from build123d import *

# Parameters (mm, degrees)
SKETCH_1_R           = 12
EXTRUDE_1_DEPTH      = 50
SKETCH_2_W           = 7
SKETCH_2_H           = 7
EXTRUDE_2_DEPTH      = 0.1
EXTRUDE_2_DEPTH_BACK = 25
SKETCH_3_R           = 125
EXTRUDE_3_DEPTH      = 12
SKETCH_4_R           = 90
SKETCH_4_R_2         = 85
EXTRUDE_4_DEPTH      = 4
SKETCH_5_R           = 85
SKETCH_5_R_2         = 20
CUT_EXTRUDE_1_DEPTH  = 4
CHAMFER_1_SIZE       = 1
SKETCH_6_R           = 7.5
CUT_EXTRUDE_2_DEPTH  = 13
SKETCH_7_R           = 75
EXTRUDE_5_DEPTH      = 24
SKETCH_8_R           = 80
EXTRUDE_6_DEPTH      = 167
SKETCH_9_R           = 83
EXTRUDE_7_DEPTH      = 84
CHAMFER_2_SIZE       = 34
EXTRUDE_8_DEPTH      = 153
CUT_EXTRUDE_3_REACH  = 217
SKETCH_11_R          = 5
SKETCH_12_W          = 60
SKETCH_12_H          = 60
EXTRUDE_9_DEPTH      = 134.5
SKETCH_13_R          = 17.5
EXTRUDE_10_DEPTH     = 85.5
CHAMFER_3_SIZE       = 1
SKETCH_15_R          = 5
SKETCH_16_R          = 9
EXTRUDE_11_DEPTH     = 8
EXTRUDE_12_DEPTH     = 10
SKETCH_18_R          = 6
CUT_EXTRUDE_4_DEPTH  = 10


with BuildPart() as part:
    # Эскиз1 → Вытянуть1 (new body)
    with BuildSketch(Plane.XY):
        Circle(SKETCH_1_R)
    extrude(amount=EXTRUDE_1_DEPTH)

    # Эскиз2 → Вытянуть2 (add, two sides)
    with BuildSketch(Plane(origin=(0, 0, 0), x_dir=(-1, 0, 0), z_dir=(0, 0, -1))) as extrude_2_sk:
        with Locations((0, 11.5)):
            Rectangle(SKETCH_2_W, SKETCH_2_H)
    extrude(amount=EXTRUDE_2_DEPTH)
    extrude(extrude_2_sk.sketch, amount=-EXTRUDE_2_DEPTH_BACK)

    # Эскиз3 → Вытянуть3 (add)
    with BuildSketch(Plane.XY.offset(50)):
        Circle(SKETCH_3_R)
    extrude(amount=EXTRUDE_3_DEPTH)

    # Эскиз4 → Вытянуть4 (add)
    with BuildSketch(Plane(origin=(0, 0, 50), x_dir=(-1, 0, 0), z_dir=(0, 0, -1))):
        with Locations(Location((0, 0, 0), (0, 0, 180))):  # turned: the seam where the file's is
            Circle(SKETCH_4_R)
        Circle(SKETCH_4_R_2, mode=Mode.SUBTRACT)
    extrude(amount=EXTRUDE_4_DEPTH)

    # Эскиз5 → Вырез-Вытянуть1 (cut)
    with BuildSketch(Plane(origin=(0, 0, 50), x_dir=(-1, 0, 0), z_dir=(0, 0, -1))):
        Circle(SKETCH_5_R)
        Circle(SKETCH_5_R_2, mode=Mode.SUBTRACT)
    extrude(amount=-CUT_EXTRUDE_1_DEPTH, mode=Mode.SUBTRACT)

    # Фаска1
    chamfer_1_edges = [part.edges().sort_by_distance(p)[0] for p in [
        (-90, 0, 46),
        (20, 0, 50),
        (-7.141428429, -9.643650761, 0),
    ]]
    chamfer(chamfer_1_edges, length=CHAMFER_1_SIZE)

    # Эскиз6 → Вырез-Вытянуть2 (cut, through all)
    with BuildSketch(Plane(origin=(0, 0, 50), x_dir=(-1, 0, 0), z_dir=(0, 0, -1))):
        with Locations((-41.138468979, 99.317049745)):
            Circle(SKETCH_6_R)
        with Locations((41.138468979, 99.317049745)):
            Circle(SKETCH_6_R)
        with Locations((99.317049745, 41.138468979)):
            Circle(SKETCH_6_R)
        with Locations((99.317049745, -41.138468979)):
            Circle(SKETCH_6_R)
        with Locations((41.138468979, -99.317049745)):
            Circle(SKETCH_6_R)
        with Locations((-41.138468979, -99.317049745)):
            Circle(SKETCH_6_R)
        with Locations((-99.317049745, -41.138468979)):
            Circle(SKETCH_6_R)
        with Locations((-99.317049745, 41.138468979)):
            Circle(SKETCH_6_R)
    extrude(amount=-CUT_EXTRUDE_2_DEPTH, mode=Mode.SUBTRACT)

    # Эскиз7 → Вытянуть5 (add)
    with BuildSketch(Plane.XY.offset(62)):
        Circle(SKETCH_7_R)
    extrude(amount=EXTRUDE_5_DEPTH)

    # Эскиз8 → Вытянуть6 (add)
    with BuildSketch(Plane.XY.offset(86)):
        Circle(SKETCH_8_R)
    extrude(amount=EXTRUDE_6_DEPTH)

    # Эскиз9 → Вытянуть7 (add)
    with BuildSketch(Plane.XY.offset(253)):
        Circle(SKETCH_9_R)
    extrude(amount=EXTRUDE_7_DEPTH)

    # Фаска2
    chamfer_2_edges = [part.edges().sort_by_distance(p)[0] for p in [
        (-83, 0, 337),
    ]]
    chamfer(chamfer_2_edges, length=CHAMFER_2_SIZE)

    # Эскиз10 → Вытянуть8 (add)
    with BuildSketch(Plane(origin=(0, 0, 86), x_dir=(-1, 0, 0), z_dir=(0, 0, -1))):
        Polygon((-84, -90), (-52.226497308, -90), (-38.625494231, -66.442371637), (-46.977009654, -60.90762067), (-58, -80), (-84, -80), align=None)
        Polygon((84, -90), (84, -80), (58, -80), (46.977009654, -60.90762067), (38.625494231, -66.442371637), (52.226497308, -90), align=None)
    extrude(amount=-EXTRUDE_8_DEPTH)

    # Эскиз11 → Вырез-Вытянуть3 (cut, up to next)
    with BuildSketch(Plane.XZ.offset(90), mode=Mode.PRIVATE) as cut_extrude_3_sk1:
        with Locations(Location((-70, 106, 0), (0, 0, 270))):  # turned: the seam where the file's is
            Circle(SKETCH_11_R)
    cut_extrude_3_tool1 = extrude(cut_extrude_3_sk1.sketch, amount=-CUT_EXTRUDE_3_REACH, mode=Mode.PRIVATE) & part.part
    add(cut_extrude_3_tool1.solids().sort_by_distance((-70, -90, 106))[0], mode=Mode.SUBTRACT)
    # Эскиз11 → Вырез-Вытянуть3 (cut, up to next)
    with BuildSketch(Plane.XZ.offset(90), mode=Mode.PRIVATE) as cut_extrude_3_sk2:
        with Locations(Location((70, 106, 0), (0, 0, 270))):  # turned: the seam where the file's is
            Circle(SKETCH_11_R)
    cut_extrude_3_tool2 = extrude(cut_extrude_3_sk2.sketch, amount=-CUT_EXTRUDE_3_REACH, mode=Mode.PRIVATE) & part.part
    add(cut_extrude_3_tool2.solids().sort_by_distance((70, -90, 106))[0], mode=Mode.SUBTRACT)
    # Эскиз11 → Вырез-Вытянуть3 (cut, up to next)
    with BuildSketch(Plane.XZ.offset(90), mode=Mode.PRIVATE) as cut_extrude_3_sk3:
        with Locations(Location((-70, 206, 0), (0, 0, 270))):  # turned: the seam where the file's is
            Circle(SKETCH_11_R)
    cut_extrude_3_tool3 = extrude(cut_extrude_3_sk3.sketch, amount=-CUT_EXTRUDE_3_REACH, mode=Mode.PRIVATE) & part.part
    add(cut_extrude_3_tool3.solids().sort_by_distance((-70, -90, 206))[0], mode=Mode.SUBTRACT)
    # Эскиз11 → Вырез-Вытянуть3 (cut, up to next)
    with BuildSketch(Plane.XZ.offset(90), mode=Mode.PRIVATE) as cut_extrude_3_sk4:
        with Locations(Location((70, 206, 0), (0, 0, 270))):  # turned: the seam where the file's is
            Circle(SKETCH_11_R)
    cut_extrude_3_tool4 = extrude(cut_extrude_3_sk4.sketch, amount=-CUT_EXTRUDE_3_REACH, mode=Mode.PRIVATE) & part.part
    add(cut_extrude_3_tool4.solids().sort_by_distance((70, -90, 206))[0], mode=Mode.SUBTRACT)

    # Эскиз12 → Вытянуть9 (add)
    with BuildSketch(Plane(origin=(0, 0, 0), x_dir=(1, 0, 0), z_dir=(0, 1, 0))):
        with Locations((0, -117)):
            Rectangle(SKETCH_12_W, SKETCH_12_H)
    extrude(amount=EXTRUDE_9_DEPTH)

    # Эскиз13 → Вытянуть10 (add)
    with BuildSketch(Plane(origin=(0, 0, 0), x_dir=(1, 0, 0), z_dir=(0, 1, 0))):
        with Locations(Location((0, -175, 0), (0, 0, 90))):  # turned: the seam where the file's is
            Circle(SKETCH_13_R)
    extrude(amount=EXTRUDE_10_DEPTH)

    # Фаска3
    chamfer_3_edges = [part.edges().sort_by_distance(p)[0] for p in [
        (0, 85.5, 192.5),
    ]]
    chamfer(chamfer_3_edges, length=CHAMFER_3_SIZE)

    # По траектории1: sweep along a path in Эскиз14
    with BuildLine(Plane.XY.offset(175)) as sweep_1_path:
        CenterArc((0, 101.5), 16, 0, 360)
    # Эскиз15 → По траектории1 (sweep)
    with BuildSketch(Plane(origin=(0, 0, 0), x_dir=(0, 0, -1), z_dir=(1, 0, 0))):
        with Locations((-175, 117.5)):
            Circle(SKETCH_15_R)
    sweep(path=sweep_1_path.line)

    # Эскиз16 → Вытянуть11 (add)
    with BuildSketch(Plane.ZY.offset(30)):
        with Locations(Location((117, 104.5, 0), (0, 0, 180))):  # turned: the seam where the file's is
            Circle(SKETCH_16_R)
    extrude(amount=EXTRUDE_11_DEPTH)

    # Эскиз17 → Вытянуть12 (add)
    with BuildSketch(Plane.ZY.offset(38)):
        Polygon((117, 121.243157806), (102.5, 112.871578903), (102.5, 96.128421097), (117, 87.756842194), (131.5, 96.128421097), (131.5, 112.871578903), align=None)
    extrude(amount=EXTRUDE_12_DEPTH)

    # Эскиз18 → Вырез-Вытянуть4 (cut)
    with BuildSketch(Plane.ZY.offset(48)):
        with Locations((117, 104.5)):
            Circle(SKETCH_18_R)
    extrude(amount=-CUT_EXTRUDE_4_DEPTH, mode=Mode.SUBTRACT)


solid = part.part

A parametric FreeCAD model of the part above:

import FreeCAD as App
import Part
import Sketcher

V = App.Vector
Q = App.Units.Quantity


def edges_at(feature, points):
    """Names of the edges that pass closest to the given points."""
    edges = feature.Shape.Edges
    near = lambda p: min(range(len(edges)), key=lambda i: edges[i].distToShape(Part.Vertex(*p))[0])
    return sorted({f"Edge{near(p) + 1}" for p in points})

doc = App.newDocument("Part")
body = doc.addObject("PartDesign::Body", "Body")

# Sketch on XY plane
sketch1 = body.newObject("Sketcher::SketchObject", "Sketch")
sketch1.AttachmentSupport = (doc.getObject("XY_Plane"), [""])
sketch1.MapMode = "FlatFace"
sketch1.addGeometry(Part.Circle(V(0, 0, 0), V(0, 0, 1), 12), False)
sketch1.addConstraint(Sketcher.Constraint("Coincident", 0, 3, -1, 1))
sketch1.addConstraint(Sketcher.Constraint("Diameter", 0, 24.0))
pad1 = body.newObject("PartDesign::Pad", "Pad")
pad1.Profile = sketch1
pad1.Length = 50

# Sketch on XY plane
sketch2 = body.newObject("Sketcher::SketchObject", "Sketch001")
sketch2.AttachmentSupport = (doc.getObject("XY_Plane"), [""])
sketch2.MapMode = "FlatFace"
sketch2.addGeometry(Part.LineSegment(V(4, 15, 0), V(4, 8, 0)), False)
sketch2.addGeometry(Part.LineSegment(V(4, 8, 0), V(-4, 8, 0)), False)
sketch2.addGeometry(Part.LineSegment(V(-4, 8, 0), V(-4, 15, 0)), False)
sketch2.addGeometry(Part.LineSegment(V(-4, 15, 0), V(4, 15, 0)), False)
sketch2.addConstraint(Sketcher.Constraint("Coincident", 0, 2, 1, 1))
sketch2.addConstraint(Sketcher.Constraint("Coincident", 1, 2, 2, 1))
sketch2.addConstraint(Sketcher.Constraint("Coincident", 2, 2, 3, 1))
sketch2.addConstraint(Sketcher.Constraint("Coincident", 3, 2, 0, 1))
sketch2.addConstraint(Sketcher.Constraint("Vertical", 0))
sketch2.addConstraint(Sketcher.Constraint("Horizontal", 1))
sketch2.addConstraint(Sketcher.Constraint("Vertical", 2))
sketch2.addConstraint(Sketcher.Constraint("Horizontal", 3))
sketch2.addConstraint(Sketcher.Constraint("Equal", 3, 0))
sketch2.addConstraint(Sketcher.Constraint("DistanceX", 1, 2, 1, 1, 7.0))
sketch2.addConstraint(Sketcher.Constraint("DistanceY", -1, 1, 0, 2, 8.0))
sketch2.addConstraint(Sketcher.Constraint("DistanceX", -1, 1, 0, 2, 3.5))
pad2 = body.newObject("PartDesign::Pad", "Pad001")
pad2.Profile = sketch2
pad2.Type = "TwoLengths"
pad2.Length = 0.1
pad2.Length2 = 25
pad2.Reversed = True

# Sketch on XY plane
sketch3 = body.newObject("Sketcher::SketchObject", "Sketch002")
sketch3.AttachmentSupport = (doc.getObject("XY_Plane"), [""])
sketch3.MapMode = "FlatFace"
sketch3.AttachmentOffset = App.Placement(V(0, 0, 50), App.Rotation())
sketch3.addGeometry(Part.Circle(V(0, 0, 0), V(0, 0, 1), 125), False)
sketch3.addConstraint(Sketcher.Constraint("Coincident", 0, 3, -1, 1))
sketch3.addConstraint(Sketcher.Constraint("Diameter", 0, 250.0))
pad3 = body.newObject("PartDesign::Pad", "Pad002")
pad3.Profile = sketch3
pad3.Length = 12

# Sketch on XY plane
sketch4 = body.newObject("Sketcher::SketchObject", "Sketch003")
sketch4.AttachmentSupport = (doc.getObject("XY_Plane"), [""])
sketch4.MapMode = "FlatFace"
sketch4.AttachmentOffset = App.Placement(V(0, 0, 50), App.Rotation())
sketch4.addGeometry(Part.Circle(V(0, 0, 0), V(0, 0, 1), 90), False)
sketch4.addGeometry(Part.Circle(V(0, 0, 0), V(0, 0, 1), 85), False)
sketch4.addConstraint(Sketcher.Constraint("Coincident", 0, 3, -1, 1))
sketch4.addConstraint(Sketcher.Constraint("Coincident", 1, 3, -1, 1))
sketch4.addConstraint(Sketcher.Constraint("Diameter", 0, 180.0))
sketch4.addConstraint(Sketcher.Constraint("Diameter", 1, 170.0))
pad4 = body.newObject("PartDesign::Pad", "Pad003")
pad4.Profile = sketch4
pad4.Length = 4
pad4.Reversed = True

# Sketch on XY plane
sketch5 = body.newObject("Sketcher::SketchObject", "Sketch004")
sketch5.AttachmentSupport = (doc.getObject("XY_Plane"), [""])
sketch5.MapMode = "FlatFace"
sketch5.AttachmentOffset = App.Placement(V(0, 0, 50), App.Rotation())
sketch5.addGeometry(Part.Circle(V(0, 0, 0), V(0, 0, 1), 85), False)
sketch5.addGeometry(Part.Circle(V(0, 0, 0), V(0, 0, 1), 20), False)
sketch5.addConstraint(Sketcher.Constraint("Coincident", 0, 3, -1, 1))
sketch5.addConstraint(Sketcher.Constraint("Coincident", 1, 3, -1, 1))
sketch5.addConstraint(Sketcher.Constraint("Diameter", 0, 170.0))
sketch5.addConstraint(Sketcher.Constraint("Diameter", 1, 40.0))
pocket1 = body.newObject("PartDesign::Pocket", "Pocket")
pocket1.Profile = sketch5
pocket1.Length = 4
pocket1.Reversed = True
doc.recompute()

chamfer = body.newObject("PartDesign::Chamfer", "Chamfer")
chamfer.Base = (pocket1, edges_at(pocket1, [(-90, 0, 46), (20, 0, 50), (-7.141, -9.644, 0)]))
chamfer.Size = 1

# Sketch on XY plane
sketch6 = body.newObject("Sketcher::SketchObject", "Sketch005")
sketch6.AttachmentSupport = (doc.getObject("XY_Plane"), [""])
sketch6.MapMode = "FlatFace"
sketch6.AttachmentOffset = App.Placement(V(0, 0, 50), App.Rotation())
sketch6.addGeometry(Part.Circle(V(41, 99, 0), V(0, 0, 1), 8), False)
sketch6.addGeometry(Part.Circle(V(-41, 99, 0), V(0, 0, 1), 8), False)
sketch6.addGeometry(Part.Circle(V(-99, 41, 0), V(0, 0, 1), 8), False)
sketch6.addGeometry(Part.Circle(V(-99, -41, 0), V(0, 0, 1), 8), False)
sketch6.addGeometry(Part.Circle(V(-41, -99, 0), V(0, 0, 1), 8), False)
sketch6.addGeometry(Part.Circle(V(41, -99, 0), V(0, 0, 1), 8), False)
sketch6.addGeometry(Part.Circle(V(99, -41, 0), V(0, 0, 1), 8), False)
sketch6.addGeometry(Part.Circle(V(99, 41, 0), V(0, 0, 1), 8), False)
sketch6.addConstraint(Sketcher.Constraint("Equal", 0, 1))
sketch6.addConstraint(Sketcher.Constraint("Equal", 1, 2))
sketch6.addConstraint(Sketcher.Constraint("Equal", 2, 3))
sketch6.addConstraint(Sketcher.Constraint("Equal", 3, 4))
sketch6.addConstraint(Sketcher.Constraint("Equal", 4, 5))
sketch6.addConstraint(Sketcher.Constraint("Equal", 5, 6))
sketch6.addConstraint(Sketcher.Constraint("Equal", 6, 7))
sketch6.addConstraint(Sketcher.Constraint("Symmetric", 0, 3, 4, 3, -1, 1))
sketch6.addConstraint(Sketcher.Constraint("Symmetric", 1, 3, 5, 3, -1, 1))
sketch6.addConstraint(Sketcher.Constraint("Symmetric", 2, 3, 6, 3, -1, 1))
sketch6.addConstraint(Sketcher.Constraint("Symmetric", 3, 3, 7, 3, -1, 1))
sketch6.addConstraint(Sketcher.Constraint("Symmetric", 0, 3, 1, 3, -2))
sketch6.addConstraint(Sketcher.Constraint("Symmetric", 3, 3, 6, 3, -2))
sketch6.addConstraint(Sketcher.Constraint("Diameter", 0, 15.0))
sketch6.addConstraint(Sketcher.Constraint("DistanceY", 4, 3, 1, 3, 198.634099))
sketch6.addConstraint(Sketcher.Constraint("DistanceX", 3, 3, 6, 3, 198.634099))
sketch6.addConstraint(Sketcher.Constraint("DistanceX", -1, 1, 0, 3, 41.138469))
sketch6.addConstraint(Sketcher.Constraint("DistanceY", -1, 1, 2, 3, 41.138469))
pocket2 = body.newObject("PartDesign::Pocket", "Pocket001")
pocket2.Profile = sketch6
pocket2.Type = "ThroughAll"
pocket2.Reversed = True

# Sketch on XY plane
sketch7 = body.newObject("Sketcher::SketchObject", "Sketch006")
sketch7.AttachmentSupport = (doc.getObject("XY_Plane"), [""])
sketch7.MapMode = "FlatFace"
sketch7.AttachmentOffset = App.Placement(V(0, 0, 62), App.Rotation())
sketch7.addGeometry(Part.Circle(V(0, 0, 0), V(0, 0, 1), 75), False)
sketch7.addConstraint(Sketcher.Constraint("Coincident", 0, 3, -1, 1))
sketch7.addConstraint(Sketcher.Constraint("Diameter", 0, 150.0))
pad5 = body.newObject("PartDesign::Pad", "Pad004")
pad5.Profile = sketch7
pad5.Length = 24

# Sketch on XY plane
sketch8 = body.newObject("Sketcher::SketchObject", "Sketch007")
sketch8.AttachmentSupport = (doc.getObject("XY_Plane"), [""])
sketch8.MapMode = "FlatFace"
sketch8.AttachmentOffset = App.Placement(V(0, 0, 86), App.Rotation())
sketch8.addGeometry(Part.Circle(V(0, 0, 0), V(0, 0, 1), 80), False)
sketch8.addConstraint(Sketcher.Constraint("Coincident", 0, 3, -1, 1))
sketch8.addConstraint(Sketcher.Constraint("Diameter", 0, 160.0))
pad6 = body.newObject("PartDesign::Pad", "Pad005")
pad6.Profile = sketch8
pad6.Length = 167

# Sketch on XY plane
sketch9 = body.newObject("Sketcher::SketchObject", "Sketch008")
sketch9.AttachmentSupport = (doc.getObject("XY_Plane"), [""])
sketch9.MapMode = "FlatFace"
sketch9.AttachmentOffset = App.Placement(V(0, 0, 253), App.Rotation())
sketch9.addGeometry(Part.Circle(V(0, 0, 0), V(0, 0, 1), 83), False)
sketch9.addConstraint(Sketcher.Constraint("Coincident", 0, 3, -1, 1))
sketch9.addConstraint(Sketcher.Constraint("Diameter", 0, 166.0))
pad7 = body.newObject("PartDesign::Pad", "Pad006")
pad7.Profile = sketch9
pad7.Length = 84
doc.recompute()

chamfer2 = body.newObject("PartDesign::Chamfer", "Chamfer001")
chamfer2.Base = (pad7, edges_at(pad7, [(-83, 0, 337)]))
chamfer2.Size = 34

# Sketch on XY plane
sketch10 = body.newObject("Sketcher::SketchObject", "Sketch009")
sketch10.AttachmentSupport = (doc.getObject("XY_Plane"), [""])
sketch10.MapMode = "FlatFace"
sketch10.AttachmentOffset = App.Placement(V(0, 0, 86), App.Rotation())
sketch10.addGeometry(Part.LineSegment(V(84, -90, 0), V(52, -90, 0)), False)
sketch10.addGeometry(Part.LineSegment(V(52, -90, 0), V(39, -66, 0)), False)
sketch10.addGeometry(Part.LineSegment(V(39, -66, 0), V(47, -61, 0)), False)
sketch10.addGeometry(Part.LineSegment(V(47, -61, 0), V(58, -80, 0)), False)
sketch10.addGeometry(Part.LineSegment(V(58, -80, 0), V(84, -80, 0)), False)
sketch10.addGeometry(Part.LineSegment(V(84, -80, 0), V(84, -90, 0)), False)
sketch10.addGeometry(Part.LineSegment(V(-84, -90, 0), V(-84, -80, 0)), False)
sketch10.addGeometry(Part.LineSegment(V(-84, -80, 0), V(-58, -80, 0)), False)
sketch10.addGeometry(Part.LineSegment(V(-58, -80, 0), V(-47, -61, 0)), False)
sketch10.addGeometry(Part.LineSegment(V(-47, -61, 0), V(-39, -66, 0)), False)
sketch10.addGeometry(Part.LineSegment(V(-39, -66, 0), V(-52, -90, 0)), False)
sketch10.addGeometry(Part.LineSegment(V(-52, -90, 0), V(-84, -90, 0)), False)
sketch10.addConstraint(Sketcher.Constraint("Coincident", 0, 2, 1, 1))
sketch10.addConstraint(Sketcher.Constraint("Coincident", 1, 2, 2, 1))
sketch10.addConstraint(Sketcher.Constraint("Coincident", 2, 2, 3, 1))
sketch10.addConstraint(Sketcher.Constraint("Coincident", 3, 2, 4, 1))
sketch10.addConstraint(Sketcher.Constraint("Coincident", 4, 2, 5, 1))
sketch10.addConstraint(Sketcher.Constraint("Coincident", 5, 2, 0, 1))
sketch10.addConstraint(Sketcher.Constraint("Coincident", 6, 2, 7, 1))
sketch10.addConstraint(Sketcher.Constraint("Coincident", 7, 2, 8, 1))
sketch10.addConstraint(Sketcher.Constraint("Coincident", 8, 2, 9, 1))
sketch10.addConstraint(Sketcher.Constraint("Coincident", 9, 2, 10, 1))
sketch10.addConstraint(Sketcher.Constraint("Coincident", 10, 2, 11, 1))
sketch10.addConstraint(Sketcher.Constraint("Coincident", 11, 2, 6, 1))
sketch10.addConstraint(Sketcher.Constraint("Horizontal", 0))
sketch10.addConstraint(Sketcher.Constraint("Horizontal", 4))
sketch10.addConstraint(Sketcher.Constraint("Vertical", 5))
sketch10.addConstraint(Sketcher.Constraint("Vertical", 6))
sketch10.addConstraint(Sketcher.Constraint("Horizontal", 7))
sketch10.addConstraint(Sketcher.Constraint("Horizontal", 11))
sketch10.addConstraint(Sketcher.Constraint("Symmetric", 4, 2, 6, 2, -2))
sketch10.addConstraint(Sketcher.Constraint("Symmetric", 2, 2, 8, 2, -2))
sketch10.addConstraint(Sketcher.Constraint("Symmetric", 1, 2, 9, 2, -2))
sketch10.addConstraint(Sketcher.Constraint("Symmetric", 0, 2, 10, 2, -2))
sketch10.addConstraint(Sketcher.Constraint("Parallel", 1, 3))
sketch10.addConstraint(Sketcher.Constraint("Parallel", 8, 10))
sketch10.addConstraint(Sketcher.Constraint("DistanceX", 4, 1, 4, 2, 26.0))
sketch10.addConstraint(Sketcher.Constraint("DistanceY", 5, 2, 5, 1, 10.0))
sketch10.addConstraint(Sketcher.Constraint("Angle", 1, Q("120 deg")))
sketch10.addConstraint(Sketcher.Constraint("DistanceY", 0, 2, -1, 1, 90.0))
sketch10.addConstraint(Sketcher.Constraint("DistanceX", -1, 1, 3, 2, 58.0))
sketch10.addConstraint(Sketcher.Constraint("Distance", 3, 22.045981))
sketch10.addConstraint(Sketcher.Constraint("DistanceX", 0, 2, 0, 1, 31.773503))
sketch10.addConstraint(Sketcher.Constraint("DistanceY", 1, 2, -1, 1, 66.442372))
pad8 = body.newObject("PartDesign::Pad", "Pad007")
pad8.Profile = sketch10
pad8.Length = 153

# Sketch on XZ plane
sketch11 = body.newObject("Sketcher::SketchObject", "Sketch010")
sketch11.AttachmentSupport = (doc.getObject("XZ_Plane"), [""])
sketch11.MapMode = "FlatFace"
sketch11.AttachmentOffset = App.Placement(V(0, 0, 90), App.Rotation())
sketch11.addGeometry(Part.Circle(V(-70, 106, 0), V(0, 0, 1), 5), False)
sketch11.addConstraint(Sketcher.Constraint("Diameter", 0, 10.0))
sketch11.addConstraint(Sketcher.Constraint("DistanceX", 0, 3, -1, 1, 70.0))
sketch11.addConstraint(Sketcher.Constraint("DistanceY", -1, 1, 0, 3, 106.0))
pocket3 = body.newObject("PartDesign::Pocket", "Pocket002")
pocket3.Profile = sketch11
pocket3.Type = "UpToFirst"

# Sketch on XZ plane
sketch12 = body.newObject("Sketcher::SketchObject", "Sketch011")
sketch12.AttachmentSupport = (doc.getObject("XZ_Plane"), [""])
sketch12.MapMode = "FlatFace"
sketch12.AttachmentOffset = App.Placement(V(0, 0, 90), App.Rotation())
sketch12.addGeometry(Part.Circle(V(70, 106, 0), V(0, 0, 1), 5), False)
sketch12.addConstraint(Sketcher.Constraint("Diameter", 0, 10.0))
sketch12.addConstraint(Sketcher.Constraint("DistanceX", -1, 1, 0, 3, 70.0))
sketch12.addConstraint(Sketcher.Constraint("DistanceY", -1, 1, 0, 3, 106.0))
pocket4 = body.newObject("PartDesign::Pocket", "Pocket003")
pocket4.Profile = sketch12
pocket4.Type = "UpToFirst"

# Sketch on XZ plane
sketch13 = body.newObject("Sketcher::SketchObject", "Sketch012")
sketch13.AttachmentSupport = (doc.getObject("XZ_Plane"), [""])
sketch13.MapMode = "FlatFace"
sketch13.AttachmentOffset = App.Placement(V(0, 0, 90), App.Rotation())
sketch13.addGeometry(Part.Circle(V(-70, 206, 0), V(0, 0, 1), 5), False)
sketch13.addConstraint(Sketcher.Constraint("Diameter", 0, 10.0))
sketch13.addConstraint(Sketcher.Constraint("DistanceX", 0, 3, -1, 1, 70.0))
sketch13.addConstraint(Sketcher.Constraint("DistanceY", -1, 1, 0, 3, 206.0))
pocket5 = body.newObject("PartDesign::Pocket", "Pocket004")
pocket5.Profile = sketch13
pocket5.Type = "UpToFirst"

# Sketch on XZ plane
sketch14 = body.newObject("Sketcher::SketchObject", "Sketch013")
sketch14.AttachmentSupport = (doc.getObject("XZ_Plane"), [""])
sketch14.MapMode = "FlatFace"
sketch14.AttachmentOffset = App.Placement(V(0, 0, 90), App.Rotation())
sketch14.addGeometry(Part.Circle(V(70, 206, 0), V(0, 0, 1), 5), False)
sketch14.addConstraint(Sketcher.Constraint("Diameter", 0, 10.0))
sketch14.addConstraint(Sketcher.Constraint("DistanceX", -1, 1, 0, 3, 70.0))
sketch14.addConstraint(Sketcher.Constraint("DistanceY", -1, 1, 0, 3, 206.0))
pocket6 = body.newObject("PartDesign::Pocket", "Pocket005")
pocket6.Profile = sketch14
pocket6.Type = "UpToFirst"

# Sketch on XZ plane
sketch15 = body.newObject("Sketcher::SketchObject", "Sketch014")
sketch15.AttachmentSupport = (doc.getObject("XZ_Plane"), [""])
sketch15.MapMode = "FlatFace"
sketch15.addGeometry(Part.LineSegment(V(-30, 87, 0), V(-30, 147, 0)), False)
sketch15.addGeometry(Part.LineSegment(V(-30, 147, 0), V(30, 147, 0)), False)
sketch15.addGeometry(Part.LineSegment(V(30, 147, 0), V(30, 87, 0)), False)
sketch15.addGeometry(Part.LineSegment(V(30, 87, 0), V(-30, 87, 0)), False)
sketch15.addConstraint(Sketcher.Constraint("Coincident", 0, 2, 1, 1))
sketch15.addConstraint(Sketcher.Constraint("Coincident", 1, 2, 2, 1))
sketch15.addConstraint(Sketcher.Constraint("Coincident", 2, 2, 3, 1))
sketch15.addConstraint(Sketcher.Constraint("Coincident", 3, 2, 0, 1))
sketch15.addConstraint(Sketcher.Constraint("Vertical", 0))
sketch15.addConstraint(Sketcher.Constraint("Horizontal", 1))
sketch15.addConstraint(Sketcher.Constraint("Vertical", 2))
sketch15.addConstraint(Sketcher.Constraint("Horizontal", 3))
sketch15.addConstraint(Sketcher.Constraint("Equal", 3, 0))
sketch15.addConstraint(Sketcher.Constraint("DistanceX", 1, 1, 1, 2, 60.0))
sketch15.addConstraint(Sketcher.Constraint("DistanceX", 0, 2, -1, 1, 30.0))
sketch15.addConstraint(Sketcher.Constraint("DistanceY", -1, 1, 0, 2, 147.0))
pad9 = body.newObject("PartDesign::Pad", "Pad008")
pad9.Profile = sketch15
pad9.Length = 134.5
pad9.Reversed = True

# Sketch on XZ plane
sketch16 = body.newObject("Sketcher::SketchObject", "Sketch015")
sketch16.AttachmentSupport = (doc.getObject("XZ_Plane"), [""])
sketch16.MapMode = "FlatFace"
sketch16.addGeometry(Part.Circle(V(0, 175, 0), V(0, 0, 1), 18), False)
sketch16.addConstraint(Sketcher.Constraint("PointOnObject", 0, 3, -2))
sketch16.addConstraint(Sketcher.Constraint("Diameter", 0, 35.0))
sketch16.addConstraint(Sketcher.Constraint("DistanceY", -1, 1, 0, 3, 175.0))
pad10 = body.newObject("PartDesign::Pad", "Pad009")
pad10.Profile = sketch16
pad10.Length = 85.5
pad10.Reversed = True
doc.recompute()

chamfer3 = body.newObject("PartDesign::Chamfer", "Chamfer002")
chamfer3.Base = (pad10, edges_at(pad10, [(0, 85.5, 192.5)]))
chamfer3.Size = 1

# Sketch on YZ plane
sketch17 = body.newObject("Sketcher::SketchObject", "Sketch016")
sketch17.AttachmentSupport = (doc.getObject("YZ_Plane"), [""])
sketch17.MapMode = "FlatFace"
sketch17.addGeometry(Part.Circle(V(118, 175, 0), V(0, 0, 1), 5), False)
sketch17.addConstraint(Sketcher.Constraint("Diameter", 0, 10.0))
sketch17.addConstraint(Sketcher.Constraint("DistanceY", -1, 1, 0, 3, 175.0))
sketch17.addConstraint(Sketcher.Constraint("DistanceX", -1, 1, 0, 3, 117.5))

# Sketch on XY plane
sketch18 = body.newObject("Sketcher::SketchObject", "Sketch017")
sketch18.AttachmentSupport = (doc.getObject("XY_Plane"), [""])
sketch18.MapMode = "FlatFace"
sketch18.AttachmentOffset = App.Placement(V(0, 0, 175), App.Rotation())
sketch18.addGeometry(Part.Circle(V(0, 102, 0), V(0, 0, 1), 16), False)
sketch18.addConstraint(Sketcher.Constraint("PointOnObject", 0, 3, -2))
sketch18.addConstraint(Sketcher.Constraint("Diameter", 0, 32.0))
sketch18.addConstraint(Sketcher.Constraint("DistanceY", -1, 1, 0, 3, 101.5))
doc.recompute()

additivepipe = body.newObject("PartDesign::AdditivePipe", "AdditivePipe")
additivepipe.Profile = sketch17
additivepipe.Spine = (sketch18, ["Edge1"])

# Sketch on YZ plane
sketch19 = body.newObject("Sketcher::SketchObject", "Sketch018")
sketch19.AttachmentSupport = (doc.getObject("YZ_Plane"), [""])
sketch19.MapMode = "FlatFace"
sketch19.AttachmentOffset = App.Placement(V(0, 0, -30), App.Rotation())
sketch19.addGeometry(Part.Circle(V(104, 117, 0), V(0, 0, 1), 9), False)
sketch19.addConstraint(Sketcher.Constraint("Diameter", 0, 18.0))
sketch19.addConstraint(Sketcher.Constraint("DistanceY", -1, 1, 0, 3, 117.0))
sketch19.addConstraint(Sketcher.Constraint("DistanceX", -1, 1, 0, 3, 104.5))
pad11 = body.newObject("PartDesign::Pad", "Pad010")
pad11.Profile = sketch19
pad11.Length = 8
pad11.Reversed = True

# Sketch on YZ plane
sketch20 = body.newObject("Sketcher::SketchObject", "Sketch019")
sketch20.AttachmentSupport = (doc.getObject("YZ_Plane"), [""])
sketch20.MapMode = "FlatFace"
sketch20.AttachmentOffset = App.Placement(V(0, 0, -38), App.Rotation())
sketch20.addGeometry(Part.LineSegment(V(121, 117, 0), V(113, 102, 0)), False)
sketch20.addGeometry(Part.LineSegment(V(113, 102, 0), V(96, 102, 0)), False)
sketch20.addGeometry(Part.LineSegment(V(96, 102, 0), V(88, 117, 0)), False)
sketch20.addGeometry(Part.LineSegment(V(88, 117, 0), V(96, 132, 0)), False)
sketch20.addGeometry(Part.LineSegment(V(96, 132, 0), V(113, 132, 0)), False)
sketch20.addGeometry(Part.LineSegment(V(113, 132, 0), V(121, 117, 0)), False)
sketch20.addConstraint(Sketcher.Constraint("Coincident", 0, 2, 1, 1))
sketch20.addConstraint(Sketcher.Constraint("Coincident", 1, 2, 2, 1))
sketch20.addConstraint(Sketcher.Constraint("Coincident", 2, 2, 3, 1))
sketch20.addConstraint(Sketcher.Constraint("Coincident", 3, 2, 4, 1))
sketch20.addConstraint(Sketcher.Constraint("Coincident", 4, 2, 5, 1))
sketch20.addConstraint(Sketcher.Constraint("Coincident", 5, 2, 0, 1))
sketch20.addConstraint(Sketcher.Constraint("Horizontal", 1))
sketch20.addConstraint(Sketcher.Constraint("Horizontal", 4))
sketch20.addConstraint(Sketcher.Constraint("Parallel", 0, 3))
sketch20.addConstraint(Sketcher.Constraint("Parallel", 2, 5))
sketch20.addConstraint(Sketcher.Constraint("Horizontal", 2, 2, 5, 2))
sketch20.addConstraint(Sketcher.Constraint("Vertical", 1, 2, 3, 2))
sketch20.addConstraint(Sketcher.Constraint("Vertical", 0, 2, 4, 2))
sketch20.addConstraint(Sketcher.Constraint("Angle", 0, Q("-120 deg")))
sketch20.addConstraint(Sketcher.Constraint("DistanceY", -1, 1, 2, 2, 117.0))
sketch20.addConstraint(Sketcher.Constraint("DistanceY", 1, 2, 3, 2, 29.0))
sketch20.addConstraint(Sketcher.Constraint("DistanceX", 1, 2, 1, 1, 16.743158))
sketch20.addConstraint(Sketcher.Constraint("DistanceX", -1, 1, 0, 2, 112.871579))
pad12 = body.newObject("PartDesign::Pad", "Pad011")
pad12.Profile = sketch20
pad12.Length = 10
pad12.Reversed = True

# Sketch on YZ plane
sketch21 = body.newObject("Sketcher::SketchObject", "Sketch020")
sketch21.AttachmentSupport = (doc.getObject("YZ_Plane"), [""])
sketch21.MapMode = "FlatFace"
sketch21.AttachmentOffset = App.Placement(V(0, 0, -48), App.Rotation())
sketch21.addGeometry(Part.Circle(V(104, 117, 0), V(0, 0, 1), 6), False)
sketch21.addConstraint(Sketcher.Constraint("Diameter", 0, 12.0))
sketch21.addConstraint(Sketcher.Constraint("DistanceY", -1, 1, 0, 3, 117.0))
sketch21.addConstraint(Sketcher.Constraint("DistanceX", -1, 1, 0, 3, 104.5))
pocket7 = body.newObject("PartDesign::Pocket", "Pocket006")
pocket7.Profile = sketch21
pocket7.Length = 10
pocket7.Reversed = True

doc.recompute()
